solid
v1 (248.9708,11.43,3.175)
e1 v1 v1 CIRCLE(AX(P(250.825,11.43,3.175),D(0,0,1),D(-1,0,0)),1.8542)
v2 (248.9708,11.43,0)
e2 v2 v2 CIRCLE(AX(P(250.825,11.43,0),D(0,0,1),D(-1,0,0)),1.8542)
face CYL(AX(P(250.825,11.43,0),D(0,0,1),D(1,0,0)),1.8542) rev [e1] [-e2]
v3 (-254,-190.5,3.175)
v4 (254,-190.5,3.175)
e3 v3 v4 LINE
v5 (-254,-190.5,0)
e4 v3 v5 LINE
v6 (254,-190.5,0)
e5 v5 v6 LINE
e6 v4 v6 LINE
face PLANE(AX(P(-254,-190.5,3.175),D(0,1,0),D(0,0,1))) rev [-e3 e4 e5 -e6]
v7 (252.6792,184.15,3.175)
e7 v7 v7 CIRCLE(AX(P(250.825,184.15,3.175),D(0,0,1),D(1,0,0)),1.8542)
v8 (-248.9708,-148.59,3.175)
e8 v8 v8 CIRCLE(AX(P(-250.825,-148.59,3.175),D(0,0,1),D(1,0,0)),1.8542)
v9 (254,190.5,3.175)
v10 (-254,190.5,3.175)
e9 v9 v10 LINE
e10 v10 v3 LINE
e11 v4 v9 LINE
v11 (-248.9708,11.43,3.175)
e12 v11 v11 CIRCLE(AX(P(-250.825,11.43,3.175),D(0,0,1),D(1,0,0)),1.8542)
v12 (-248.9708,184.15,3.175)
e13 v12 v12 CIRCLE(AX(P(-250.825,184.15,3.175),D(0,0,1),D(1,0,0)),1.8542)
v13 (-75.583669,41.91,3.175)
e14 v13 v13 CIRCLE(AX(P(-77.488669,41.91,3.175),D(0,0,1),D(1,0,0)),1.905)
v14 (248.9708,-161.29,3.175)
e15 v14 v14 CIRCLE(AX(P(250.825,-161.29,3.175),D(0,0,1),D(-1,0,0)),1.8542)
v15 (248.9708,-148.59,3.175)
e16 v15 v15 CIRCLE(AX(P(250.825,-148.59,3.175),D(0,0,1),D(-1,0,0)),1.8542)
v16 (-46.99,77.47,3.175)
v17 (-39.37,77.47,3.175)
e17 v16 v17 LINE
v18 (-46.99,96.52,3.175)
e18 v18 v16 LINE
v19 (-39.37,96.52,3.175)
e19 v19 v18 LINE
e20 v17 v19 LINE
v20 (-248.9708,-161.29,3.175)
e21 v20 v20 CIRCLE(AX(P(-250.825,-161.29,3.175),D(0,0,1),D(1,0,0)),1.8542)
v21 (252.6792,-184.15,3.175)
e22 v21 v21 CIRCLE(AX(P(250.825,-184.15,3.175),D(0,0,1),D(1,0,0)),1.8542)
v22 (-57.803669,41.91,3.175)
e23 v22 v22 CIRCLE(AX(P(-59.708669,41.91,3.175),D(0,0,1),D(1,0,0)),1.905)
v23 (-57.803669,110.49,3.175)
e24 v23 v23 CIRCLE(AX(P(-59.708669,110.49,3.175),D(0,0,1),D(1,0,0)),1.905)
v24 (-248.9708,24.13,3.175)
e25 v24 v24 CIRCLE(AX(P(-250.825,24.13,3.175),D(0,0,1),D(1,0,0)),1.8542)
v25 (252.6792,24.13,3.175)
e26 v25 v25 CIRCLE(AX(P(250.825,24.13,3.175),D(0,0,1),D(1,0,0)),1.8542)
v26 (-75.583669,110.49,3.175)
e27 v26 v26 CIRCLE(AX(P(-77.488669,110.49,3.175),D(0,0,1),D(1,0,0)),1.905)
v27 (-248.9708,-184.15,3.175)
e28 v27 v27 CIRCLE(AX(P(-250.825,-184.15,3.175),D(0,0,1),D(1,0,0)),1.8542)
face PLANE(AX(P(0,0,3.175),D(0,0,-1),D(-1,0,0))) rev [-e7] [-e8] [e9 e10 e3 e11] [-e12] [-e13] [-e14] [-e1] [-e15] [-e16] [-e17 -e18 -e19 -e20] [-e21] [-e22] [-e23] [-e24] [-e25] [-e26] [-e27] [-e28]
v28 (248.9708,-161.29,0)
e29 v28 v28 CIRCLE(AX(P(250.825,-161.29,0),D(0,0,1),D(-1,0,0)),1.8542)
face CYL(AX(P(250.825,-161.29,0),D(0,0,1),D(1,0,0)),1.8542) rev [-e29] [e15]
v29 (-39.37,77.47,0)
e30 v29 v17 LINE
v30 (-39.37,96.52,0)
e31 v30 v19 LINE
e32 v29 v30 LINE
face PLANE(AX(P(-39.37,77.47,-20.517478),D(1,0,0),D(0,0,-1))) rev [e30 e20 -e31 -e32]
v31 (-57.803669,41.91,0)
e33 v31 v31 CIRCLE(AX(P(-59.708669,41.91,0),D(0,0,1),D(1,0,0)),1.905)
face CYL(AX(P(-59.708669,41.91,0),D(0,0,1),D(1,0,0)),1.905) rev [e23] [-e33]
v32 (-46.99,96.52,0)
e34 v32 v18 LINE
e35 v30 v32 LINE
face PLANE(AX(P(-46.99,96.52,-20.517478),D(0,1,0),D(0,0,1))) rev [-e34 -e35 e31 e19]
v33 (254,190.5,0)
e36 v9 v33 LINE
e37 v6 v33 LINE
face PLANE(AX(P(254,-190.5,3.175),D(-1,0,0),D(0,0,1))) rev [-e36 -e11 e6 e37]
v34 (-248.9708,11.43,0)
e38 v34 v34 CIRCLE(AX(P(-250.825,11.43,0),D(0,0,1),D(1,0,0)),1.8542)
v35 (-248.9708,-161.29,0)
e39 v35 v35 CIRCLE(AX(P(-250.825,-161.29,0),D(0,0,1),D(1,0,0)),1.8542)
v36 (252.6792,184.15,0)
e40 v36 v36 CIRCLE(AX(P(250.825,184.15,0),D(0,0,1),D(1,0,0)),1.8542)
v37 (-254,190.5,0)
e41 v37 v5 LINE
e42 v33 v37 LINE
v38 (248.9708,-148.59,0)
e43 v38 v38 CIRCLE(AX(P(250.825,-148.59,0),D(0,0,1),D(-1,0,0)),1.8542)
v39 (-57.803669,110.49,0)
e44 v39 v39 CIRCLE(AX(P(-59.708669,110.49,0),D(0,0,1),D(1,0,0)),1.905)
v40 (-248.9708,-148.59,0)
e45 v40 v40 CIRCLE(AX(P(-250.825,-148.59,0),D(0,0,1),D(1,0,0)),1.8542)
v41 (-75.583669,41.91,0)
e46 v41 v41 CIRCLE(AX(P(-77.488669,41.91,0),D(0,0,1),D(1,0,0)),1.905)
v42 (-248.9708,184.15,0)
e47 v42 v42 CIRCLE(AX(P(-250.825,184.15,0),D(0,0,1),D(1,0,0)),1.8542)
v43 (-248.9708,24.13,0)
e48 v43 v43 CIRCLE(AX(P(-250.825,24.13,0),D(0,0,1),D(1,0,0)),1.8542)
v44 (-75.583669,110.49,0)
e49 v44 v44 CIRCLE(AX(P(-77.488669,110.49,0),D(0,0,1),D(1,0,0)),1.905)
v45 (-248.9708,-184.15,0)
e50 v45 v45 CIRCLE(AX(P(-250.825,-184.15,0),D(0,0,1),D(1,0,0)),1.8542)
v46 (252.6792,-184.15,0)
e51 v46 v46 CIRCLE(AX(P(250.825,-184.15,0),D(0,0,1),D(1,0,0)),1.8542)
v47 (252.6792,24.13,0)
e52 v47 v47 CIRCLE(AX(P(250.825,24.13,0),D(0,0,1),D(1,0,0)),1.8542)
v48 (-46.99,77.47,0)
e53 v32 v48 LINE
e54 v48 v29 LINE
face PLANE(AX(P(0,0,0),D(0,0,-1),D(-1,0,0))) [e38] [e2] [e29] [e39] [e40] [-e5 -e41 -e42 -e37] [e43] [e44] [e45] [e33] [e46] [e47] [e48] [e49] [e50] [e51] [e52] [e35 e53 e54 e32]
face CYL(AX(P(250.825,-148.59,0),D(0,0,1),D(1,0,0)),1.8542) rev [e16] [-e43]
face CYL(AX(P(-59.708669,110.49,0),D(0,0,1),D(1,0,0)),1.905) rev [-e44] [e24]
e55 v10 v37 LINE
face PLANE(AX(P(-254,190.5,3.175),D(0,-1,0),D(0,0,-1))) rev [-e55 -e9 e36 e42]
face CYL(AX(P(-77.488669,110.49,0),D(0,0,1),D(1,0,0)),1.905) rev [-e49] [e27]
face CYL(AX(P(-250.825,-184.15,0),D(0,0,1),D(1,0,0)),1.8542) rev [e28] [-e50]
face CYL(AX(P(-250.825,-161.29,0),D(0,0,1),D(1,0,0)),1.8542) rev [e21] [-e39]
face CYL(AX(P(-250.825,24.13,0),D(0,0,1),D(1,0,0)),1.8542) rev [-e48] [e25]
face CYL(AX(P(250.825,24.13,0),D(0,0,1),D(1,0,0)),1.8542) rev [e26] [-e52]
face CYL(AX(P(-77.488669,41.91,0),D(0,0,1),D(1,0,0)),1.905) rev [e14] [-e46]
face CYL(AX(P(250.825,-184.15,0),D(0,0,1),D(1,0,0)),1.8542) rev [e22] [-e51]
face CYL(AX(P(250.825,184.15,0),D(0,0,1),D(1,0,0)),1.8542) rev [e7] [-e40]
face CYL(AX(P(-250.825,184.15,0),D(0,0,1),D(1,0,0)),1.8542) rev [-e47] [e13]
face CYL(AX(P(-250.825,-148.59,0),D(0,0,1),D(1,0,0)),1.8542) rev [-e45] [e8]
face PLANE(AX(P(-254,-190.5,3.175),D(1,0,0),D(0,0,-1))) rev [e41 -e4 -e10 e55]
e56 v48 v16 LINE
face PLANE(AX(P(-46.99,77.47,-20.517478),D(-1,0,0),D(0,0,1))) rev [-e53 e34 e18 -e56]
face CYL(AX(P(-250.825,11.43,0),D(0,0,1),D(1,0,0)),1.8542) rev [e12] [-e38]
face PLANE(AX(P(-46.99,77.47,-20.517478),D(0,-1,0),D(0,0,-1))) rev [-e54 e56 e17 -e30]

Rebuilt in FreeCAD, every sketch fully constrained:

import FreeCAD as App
import Part
import Sketcher

V = App.Vector
Q = App.Units.Quantity

doc = App.newDocument("Part")
body = doc.addObject("PartDesign::Body", "Body")

# Sketch on XY plane
sketch1 = body.newObject("Sketcher::SketchObject", "Sketch")
sketch1.AttachmentSupport = (doc.getObject("XY_Plane"), [""])
sketch1.MapMode = "FlatFace"
sketch1.addGeometry([
    Part.LineSegment(V(-254, 190.5, 0), V(-254, -190.5, 0)),
    Part.LineSegment(V(-254, -190.5, 0), V(254, -190.5, 0)),
    Part.LineSegment(V(254, -190.5, 0), V(254, 190.5, 0)),
    Part.LineSegment(V(254, 190.5, 0), V(-254, 190.5, 0)),
], False)
sketch1.addConstraint([
    Sketcher.Constraint("Coincident", 0, 2, 1, 1),
    Sketcher.Constraint("Coincident", 1, 2, 2, 1),
    Sketcher.Constraint("Coincident", 2, 2, 3, 1),
    Sketcher.Constraint("Coincident", 3, 2, 0, 1),
    Sketcher.Constraint("Vertical", 0),
    Sketcher.Constraint("Horizontal", 1),
    Sketcher.Constraint("Vertical", 2),
    Sketcher.Constraint("Horizontal", 3),
    Sketcher.Constraint("Symmetric", 0, 2, 2, 2, -1, 1),
    Sketcher.Constraint("DistanceX", 1, 1, 1, 2, Q("20 in")),
    Sketcher.Constraint("DistanceY", 0, 2, 0, 1, Q("15 in")),
])
pad1 = body.newObject("PartDesign::Pad", "Pad")
pad1.Profile = sketch1
pad1.Length = Q("0.125 in")

# Sketch on XY plane
sketch2 = body.newObject("Sketcher::SketchObject", "Sketch001")
sketch2.AttachmentSupport = (doc.getObject("XY_Plane"), [""])
sketch2.MapMode = "FlatFace"
sketch2.AttachmentOffset = App.Placement(V(0, 0, 0.125 * 25.4), App.Rotation())
sketch2.addGeometry([
    Part.LineSegment(V(-46.99, 96.52, 0), V(-46.99, 77.47, 0)),
    Part.LineSegment(V(-46.99, 77.47, 0), V(-39.37, 77.47, 0)),
    Part.LineSegment(V(-39.37, 77.47, 0), V(-39.37, 96.52, 0)),
    Part.LineSegment(V(-39.37, 96.52, 0), V(-46.99, 96.52, 0)),
], False)
sketch2.addConstraint([
    Sketcher.Constraint("Coincident", 0, 2, 1, 1),
    Sketcher.Constraint("Coincident", 1, 2, 2, 1),
    Sketcher.Constraint("Coincident", 2, 2, 3, 1),
    Sketcher.Constraint("Coincident", 3, 2, 0, 1),
    Sketcher.Constraint("Vertical", 0),
    Sketcher.Constraint("Horizontal", 1),
    Sketcher.Constraint("Vertical", 2),
    Sketcher.Constraint("Horizontal", 3),
    Sketcher.Constraint("DistanceX", 1, 1, 1, 2, Q("0.3 in")),
    Sketcher.Constraint("DistanceY", 0, 2, 0, 1, Q("0.75 in")),
    Sketcher.Constraint("DistanceY", -1, 1, 2, 2, Q("3.8 in")),
    Sketcher.Constraint("DistanceX", 0, 2, -1, 1, Q("1.85 in")),
])
pocket1 = body.newObject("PartDesign::Pocket", "Pocket")
pocket1.Profile = sketch2
pocket1.Length = Q("0.125 in")

# Sketch on XY plane
sketch3 = body.newObject("Sketcher::SketchObject", "Sketch002")
sketch3.AttachmentSupport = (doc.getObject("XY_Plane"), [""])
sketch3.MapMode = "FlatFace"
sketch3.AttachmentOffset = App.Placement(V(0, 0, 0.125 * 25.4), App.Rotation())
sketch3.addGeometry([
    Part.Circle(V(-250.825, -184.15, 0), V(0, 0, 1), 1.8542),  # 0
    Part.Circle(V(-250.825, 184.15, 0), V(0, 0, 1), 1.8542),  # 1
    Part.Circle(V(250.825, 184.15, 0), V(0, 0, 1), 1.8542),  # 2
    Part.Circle(V(250.825, -184.15, 0), V(0, 0, 1), 1.8542),  # 3
    Part.Circle(V(-250.825, 24.13, 0), V(0, 0, 1), 1.8542),  # 4
    Part.Circle(V(250.825, 24.13, 0), V(0, 0, 1), 1.8542),  # 5
    Part.Circle(V(-250.825, 11.43, 0), V(0, 0, 1), 1.8542),  # 6
    Part.Circle(V(-250.825, -148.59, 0), V(0, 0, 1), 1.8542),  # 7
    Part.Circle(V(-250.825, -161.29, 0), V(0, 0, 1), 1.8542),  # 8
    Part.Circle(V(250.825, -161.29, 0), V(0, 0, 1), 1.8542),  # 9
    Part.Circle(V(250.825, -148.59, 0), V(0, 0, 1), 1.8542),  # 10
    Part.Circle(V(250.825, 11.43, 0), V(0, 0, 1), 1.8542),  # 11
    Part.Circle(V(-77.488669, 110.49, 0), V(0, 0, 1), 1.905),  # 12
    Part.Circle(V(-77.488669, 41.91, 0), V(0, 0, 1), 1.905),  # 13
    Part.Circle(V(-59.708669, 110.49, 0), V(0, 0, 1), 1.905),  # 14
    Part.Circle(V(-59.708669, 41.91, 0), V(0, 0, 1), 1.905),  # 15
], False)
sketch3.addConstraint([
    Sketcher.Constraint("Equal", 0, 1),
    Sketcher.Constraint("Equal", 1, 2),
    Sketcher.Constraint("Equal", 2, 3),
    Sketcher.Constraint("Equal", 3, 4),
    Sketcher.Constraint("Equal", 4, 5),
    Sketcher.Constraint("Equal", 5, 6),
    Sketcher.Constraint("Equal", 6, 7),
    Sketcher.Constraint("Equal", 7, 8),
    Sketcher.Constraint("Equal", 8, 9),
    Sketcher.Constraint("Equal", 9, 10),
    Sketcher.Constraint("Equal", 10, 11),
    Sketcher.Constraint("Equal", 12, 13),
    Sketcher.Constraint("Equal", 13, 14),
    Sketcher.Constraint("Equal", 14, 15),
    Sketcher.Constraint("Symmetric", 0, 3, 2, 3, -1, 1),
    Sketcher.Constraint("Symmetric", 1, 3, 3, 3, -1, 1),
    Sketcher.Constraint("Symmetric", 1, 3, 2, 3, -2),
    Sketcher.Constraint("Symmetric", 4, 3, 5, 3, -2),
    Sketcher.Constraint("Symmetric", 8, 3, 9, 3, -2),
    Sketcher.Constraint("Symmetric", 7, 3, 10, 3, -2),
    Sketcher.Constraint("Symmetric", 6, 3, 11, 3, -2),
    Sketcher.Constraint("Horizontal", 12, 3, 14, 3),
    Sketcher.Constraint("Horizontal", 13, 3, 15, 3),
    Sketcher.Constraint("Vertical", 1, 3, 4, 3),
    Sketcher.Constraint("Vertical", 4, 3, 6, 3),
    Sketcher.Constraint("Vertical", 6, 3, 7, 3),
    Sketcher.Constraint("Vertical", 7, 3, 8, 3),
    Sketcher.Constraint("Vertical", 12, 3, 13, 3),
    Sketcher.Constraint("Vertical", 14, 3, 15, 3),
    Sketcher.Constraint("Diameter", 12, Q("0.15 in")),
    Sketcher.Constraint("Diameter", 0, Q("0.146 in")),
    Sketcher.Constraint("DistanceY", 0, 3, 1, 3, Q("14.5 in")),
    Sketcher.Constraint("DistanceY", 4, 3, 1, 3, Q("6.3 in")),
    Sketcher.Constraint("DistanceY", 6, 3, 4, 3, Q("0.5 in")),
    Sketcher.Constraint("DistanceY", 0, 3, 7, 3, Q("1.4 in")),
    Sketcher.Constraint("DistanceY", 8, 3, 7, 3, Q("0.5 in")),
    Sketcher.Constraint("DistanceY", 12, 3, 1, 3, Q("2.9 in")),
    Sketcher.Constraint("DistanceY", 13, 3, 12, 3, Q("2.7 in")),
    Sketcher.Constraint("DistanceX", 12, 3, 14, 3, Q("0.7 in")),
    Sketcher.Constraint("DistanceX", 1, 3, 2, 3, Q("19.75 in")),
    Sketcher.Constraint("DistanceX", 12, 3, -1, 1, Q("77.488669 mm")),
])
pocket2 = body.newObject("PartDesign::Pocket", "Pocket001")
pocket2.Profile = sketch3
pocket2.Length = Q("0.125 in")

doc.recompute()
